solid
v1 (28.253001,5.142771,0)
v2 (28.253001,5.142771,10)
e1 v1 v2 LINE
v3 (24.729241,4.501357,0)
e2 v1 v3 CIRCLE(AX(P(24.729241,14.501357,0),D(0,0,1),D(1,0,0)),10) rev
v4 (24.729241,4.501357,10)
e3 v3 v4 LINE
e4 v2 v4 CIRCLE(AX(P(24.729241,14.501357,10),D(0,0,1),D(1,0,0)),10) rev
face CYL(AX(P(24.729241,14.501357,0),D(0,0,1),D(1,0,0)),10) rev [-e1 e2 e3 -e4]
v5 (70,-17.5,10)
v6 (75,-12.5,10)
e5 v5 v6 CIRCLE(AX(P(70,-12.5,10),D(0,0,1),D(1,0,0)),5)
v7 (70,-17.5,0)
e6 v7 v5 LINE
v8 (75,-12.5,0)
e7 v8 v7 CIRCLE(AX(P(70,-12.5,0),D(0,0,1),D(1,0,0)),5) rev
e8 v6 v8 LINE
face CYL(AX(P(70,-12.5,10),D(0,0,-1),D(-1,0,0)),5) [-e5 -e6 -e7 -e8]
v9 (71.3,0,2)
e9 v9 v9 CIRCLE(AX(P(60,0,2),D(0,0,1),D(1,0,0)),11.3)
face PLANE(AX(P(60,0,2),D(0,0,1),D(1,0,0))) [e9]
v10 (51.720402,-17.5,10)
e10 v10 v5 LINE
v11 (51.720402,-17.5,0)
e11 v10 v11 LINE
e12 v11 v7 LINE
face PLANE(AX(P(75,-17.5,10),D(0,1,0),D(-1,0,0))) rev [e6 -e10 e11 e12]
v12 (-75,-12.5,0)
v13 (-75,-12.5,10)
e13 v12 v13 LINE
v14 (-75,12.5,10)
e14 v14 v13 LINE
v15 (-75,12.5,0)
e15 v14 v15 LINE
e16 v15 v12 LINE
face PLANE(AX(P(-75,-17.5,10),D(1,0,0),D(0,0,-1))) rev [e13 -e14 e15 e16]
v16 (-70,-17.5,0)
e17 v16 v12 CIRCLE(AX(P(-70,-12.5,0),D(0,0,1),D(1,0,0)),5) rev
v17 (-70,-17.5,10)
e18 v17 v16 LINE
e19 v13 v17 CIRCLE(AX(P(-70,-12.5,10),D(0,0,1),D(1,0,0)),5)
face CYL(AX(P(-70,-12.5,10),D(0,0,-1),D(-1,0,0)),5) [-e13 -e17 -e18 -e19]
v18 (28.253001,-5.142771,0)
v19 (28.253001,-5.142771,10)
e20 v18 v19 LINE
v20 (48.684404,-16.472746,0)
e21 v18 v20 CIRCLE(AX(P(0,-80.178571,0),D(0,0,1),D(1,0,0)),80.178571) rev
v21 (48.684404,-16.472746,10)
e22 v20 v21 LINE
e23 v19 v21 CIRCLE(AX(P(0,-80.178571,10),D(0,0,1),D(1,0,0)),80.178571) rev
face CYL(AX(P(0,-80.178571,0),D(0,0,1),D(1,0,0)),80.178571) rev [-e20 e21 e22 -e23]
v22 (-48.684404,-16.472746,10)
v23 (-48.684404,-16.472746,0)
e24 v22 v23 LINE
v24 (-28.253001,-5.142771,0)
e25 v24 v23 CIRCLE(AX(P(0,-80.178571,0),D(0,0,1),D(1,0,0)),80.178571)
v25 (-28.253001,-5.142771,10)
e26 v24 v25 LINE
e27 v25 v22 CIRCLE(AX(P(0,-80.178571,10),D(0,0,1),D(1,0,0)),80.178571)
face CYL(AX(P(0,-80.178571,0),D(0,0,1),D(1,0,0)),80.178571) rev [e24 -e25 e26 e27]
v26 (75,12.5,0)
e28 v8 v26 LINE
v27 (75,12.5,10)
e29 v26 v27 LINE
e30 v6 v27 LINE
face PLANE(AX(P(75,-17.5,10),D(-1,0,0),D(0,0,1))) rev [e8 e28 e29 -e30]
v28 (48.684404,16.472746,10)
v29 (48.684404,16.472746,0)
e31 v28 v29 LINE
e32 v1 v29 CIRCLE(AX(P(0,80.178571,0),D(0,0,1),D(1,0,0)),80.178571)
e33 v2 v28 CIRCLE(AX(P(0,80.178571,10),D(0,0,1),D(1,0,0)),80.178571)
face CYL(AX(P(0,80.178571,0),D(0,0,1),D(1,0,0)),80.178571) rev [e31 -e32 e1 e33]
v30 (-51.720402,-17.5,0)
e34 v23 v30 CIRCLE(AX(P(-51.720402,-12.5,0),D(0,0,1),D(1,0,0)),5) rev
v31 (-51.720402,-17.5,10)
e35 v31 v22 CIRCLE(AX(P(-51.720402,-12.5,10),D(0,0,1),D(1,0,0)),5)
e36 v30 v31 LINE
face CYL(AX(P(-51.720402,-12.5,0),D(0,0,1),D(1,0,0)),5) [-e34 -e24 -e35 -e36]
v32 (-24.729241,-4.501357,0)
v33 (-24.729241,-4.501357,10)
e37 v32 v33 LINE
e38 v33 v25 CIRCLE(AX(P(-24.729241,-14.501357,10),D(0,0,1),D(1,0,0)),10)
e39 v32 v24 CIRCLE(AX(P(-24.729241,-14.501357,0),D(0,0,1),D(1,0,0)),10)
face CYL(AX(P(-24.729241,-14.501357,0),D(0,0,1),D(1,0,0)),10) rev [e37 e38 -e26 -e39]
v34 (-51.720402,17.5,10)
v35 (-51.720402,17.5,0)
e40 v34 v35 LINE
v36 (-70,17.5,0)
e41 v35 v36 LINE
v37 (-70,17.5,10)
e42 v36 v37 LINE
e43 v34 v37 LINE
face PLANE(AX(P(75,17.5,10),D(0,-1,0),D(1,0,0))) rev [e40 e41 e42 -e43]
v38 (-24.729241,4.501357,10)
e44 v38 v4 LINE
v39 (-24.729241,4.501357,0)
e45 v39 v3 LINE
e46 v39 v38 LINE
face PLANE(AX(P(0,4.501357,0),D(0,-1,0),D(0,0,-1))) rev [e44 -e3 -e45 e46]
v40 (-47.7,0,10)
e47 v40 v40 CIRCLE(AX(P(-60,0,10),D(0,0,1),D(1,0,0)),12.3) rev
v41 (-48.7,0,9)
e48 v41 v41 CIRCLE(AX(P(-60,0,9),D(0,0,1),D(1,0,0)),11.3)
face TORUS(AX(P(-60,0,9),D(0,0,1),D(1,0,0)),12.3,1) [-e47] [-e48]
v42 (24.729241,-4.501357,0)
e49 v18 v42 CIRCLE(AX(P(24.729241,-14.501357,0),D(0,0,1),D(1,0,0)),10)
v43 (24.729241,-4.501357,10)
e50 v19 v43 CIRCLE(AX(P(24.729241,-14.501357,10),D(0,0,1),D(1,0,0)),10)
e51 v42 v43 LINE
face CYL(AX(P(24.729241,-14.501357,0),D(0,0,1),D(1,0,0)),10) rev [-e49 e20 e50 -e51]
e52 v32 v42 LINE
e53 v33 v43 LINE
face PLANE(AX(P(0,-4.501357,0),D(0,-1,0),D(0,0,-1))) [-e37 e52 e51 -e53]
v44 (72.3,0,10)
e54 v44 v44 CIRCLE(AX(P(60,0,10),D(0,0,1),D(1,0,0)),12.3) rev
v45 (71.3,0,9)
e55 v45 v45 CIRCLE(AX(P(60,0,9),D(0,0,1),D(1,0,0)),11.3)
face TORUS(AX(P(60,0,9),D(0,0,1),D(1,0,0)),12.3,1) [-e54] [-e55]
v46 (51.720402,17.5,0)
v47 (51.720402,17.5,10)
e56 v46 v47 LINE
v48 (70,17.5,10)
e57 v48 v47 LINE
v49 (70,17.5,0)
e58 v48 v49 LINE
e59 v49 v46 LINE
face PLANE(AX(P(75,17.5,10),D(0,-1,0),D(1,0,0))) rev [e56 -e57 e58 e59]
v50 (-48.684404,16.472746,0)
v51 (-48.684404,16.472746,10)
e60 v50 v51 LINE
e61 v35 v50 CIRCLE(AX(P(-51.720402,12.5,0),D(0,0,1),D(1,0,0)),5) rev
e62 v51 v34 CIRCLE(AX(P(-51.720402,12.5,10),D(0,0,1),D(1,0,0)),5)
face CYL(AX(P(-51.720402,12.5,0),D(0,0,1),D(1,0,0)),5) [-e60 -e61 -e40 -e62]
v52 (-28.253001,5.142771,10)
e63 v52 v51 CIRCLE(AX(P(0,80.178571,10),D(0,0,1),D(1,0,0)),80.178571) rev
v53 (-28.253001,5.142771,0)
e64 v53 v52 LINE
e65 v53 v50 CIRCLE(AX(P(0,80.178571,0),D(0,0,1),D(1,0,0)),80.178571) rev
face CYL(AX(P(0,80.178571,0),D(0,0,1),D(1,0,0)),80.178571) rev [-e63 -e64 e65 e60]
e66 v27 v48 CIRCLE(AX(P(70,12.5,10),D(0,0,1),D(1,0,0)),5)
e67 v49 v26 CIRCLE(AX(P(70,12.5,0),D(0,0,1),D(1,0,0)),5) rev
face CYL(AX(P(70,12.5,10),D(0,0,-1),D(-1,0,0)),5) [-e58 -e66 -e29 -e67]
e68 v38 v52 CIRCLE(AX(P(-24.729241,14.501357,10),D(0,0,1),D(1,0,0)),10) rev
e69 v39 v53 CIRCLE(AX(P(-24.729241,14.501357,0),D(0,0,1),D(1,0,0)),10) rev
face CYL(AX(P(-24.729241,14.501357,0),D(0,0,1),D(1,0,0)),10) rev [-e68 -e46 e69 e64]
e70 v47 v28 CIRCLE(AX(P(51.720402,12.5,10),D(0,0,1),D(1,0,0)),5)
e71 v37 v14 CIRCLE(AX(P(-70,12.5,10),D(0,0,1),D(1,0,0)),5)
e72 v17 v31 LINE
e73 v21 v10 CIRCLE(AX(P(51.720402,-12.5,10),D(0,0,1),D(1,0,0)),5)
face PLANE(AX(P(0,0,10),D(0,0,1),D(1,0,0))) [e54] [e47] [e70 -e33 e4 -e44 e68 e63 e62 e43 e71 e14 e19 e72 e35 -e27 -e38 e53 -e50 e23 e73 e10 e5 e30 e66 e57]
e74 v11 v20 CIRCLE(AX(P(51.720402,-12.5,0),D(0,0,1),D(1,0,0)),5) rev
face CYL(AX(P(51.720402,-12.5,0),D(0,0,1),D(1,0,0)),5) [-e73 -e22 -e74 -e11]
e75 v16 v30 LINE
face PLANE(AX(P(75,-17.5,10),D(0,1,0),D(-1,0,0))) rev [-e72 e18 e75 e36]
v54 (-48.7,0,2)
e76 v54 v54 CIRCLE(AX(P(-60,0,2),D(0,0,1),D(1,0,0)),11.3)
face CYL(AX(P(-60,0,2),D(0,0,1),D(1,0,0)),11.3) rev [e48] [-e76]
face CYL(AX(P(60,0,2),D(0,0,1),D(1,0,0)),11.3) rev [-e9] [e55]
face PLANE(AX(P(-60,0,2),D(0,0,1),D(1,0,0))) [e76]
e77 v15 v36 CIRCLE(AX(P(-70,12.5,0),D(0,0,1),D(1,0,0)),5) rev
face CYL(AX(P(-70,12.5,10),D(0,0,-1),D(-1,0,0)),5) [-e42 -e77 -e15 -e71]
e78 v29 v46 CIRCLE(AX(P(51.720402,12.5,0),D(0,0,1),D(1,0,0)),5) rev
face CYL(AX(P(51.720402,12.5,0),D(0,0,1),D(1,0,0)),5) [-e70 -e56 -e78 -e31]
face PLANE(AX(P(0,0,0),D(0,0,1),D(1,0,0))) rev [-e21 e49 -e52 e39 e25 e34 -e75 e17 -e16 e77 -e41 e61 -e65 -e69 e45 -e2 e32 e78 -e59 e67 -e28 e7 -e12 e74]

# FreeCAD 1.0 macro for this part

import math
import FreeCAD as App
import Part
import Sketcher

V = App.Vector


def edges_at(feature, points):
    """Names of the edges that pass closest to the given points."""
    edges = feature.Shape.Edges
    near = lambda p: min(range(len(edges)), key=lambda i: edges[i].distToShape(Part.Vertex(*p))[0])
    return sorted({f"Edge{near(p) + 1}" for p in points})

doc = App.newDocument("Part")
params = doc.addObject("Spreadsheet::Sheet", "Params")
for row, (alias, value) in enumerate([
    ("sketch1_width", "150 mm"),
    ("sketch1_height", "35 mm"),
    ("pad1_length", "10 mm"),
    ("sketch2_diameter", "22.6 mm"),
    ("pocket1_length", "8 mm"),
    ("sketch3_radius", "10 mm"),
    ("sketch3_width", "100 mm"),
    ("fillet_radius", "5 mm"),
    ("fillet2_radius", "1 mm"),
], start=1):
    params.set(f"A{row}", alias)
    params.set(f"B{row}", "=" + value)
    params.setAlias(f"B{row}", alias)

body = doc.addObject("PartDesign::Body", "Body")

sketch1 = body.newObject("Sketcher::SketchObject", "Sketch")
sketch1.AttachmentSupport = (doc.getObject("XY_Plane"), [""])
sketch1.MapMode = "FlatFace"
sketch1.addGeometry(Part.LineSegment(V(-75, 17.5, 0), V(-75, -17.5, 0)), False)
sketch1.addGeometry(Part.LineSegment(V(-75, -17.5, 0), V(75, -17.5, 0)), False)
sketch1.addGeometry(Part.LineSegment(V(75, -17.5, 0), V(75, 17.5, 0)), False)
sketch1.addGeometry(Part.LineSegment(V(75, 17.5, 0), V(-75, 17.5, 0)), False)
sketch1.addConstraint(Sketcher.Constraint("Coincident", 0, 2, 1, 1))
sketch1.addConstraint(Sketcher.Constraint("Coincident", 1, 2, 2, 1))
sketch1.addConstraint(Sketcher.Constraint("Coincident", 2, 2, 3, 1))
sketch1.addConstraint(Sketcher.Constraint("Coincident", 3, 2, 0, 1))
sketch1.addConstraint(Sketcher.Constraint("Vertical", 0))
sketch1.addConstraint(Sketcher.Constraint("Horizontal", 1))
sketch1.addConstraint(Sketcher.Constraint("Vertical", 2))
sketch1.addConstraint(Sketcher.Constraint("Horizontal", 3))
sketch1.addConstraint(Sketcher.Constraint("Symmetric", 0, 2, 2, 2, -1, 1))
sketch1.addConstraint(Sketcher.Constraint("DistanceX", 1, 1, 1, 2, 150.0))
sketch1.addConstraint(Sketcher.Constraint("DistanceY", 0, 2, 0, 1, 35.0))
sketch1.setExpression("Constraints[9]", "Params.sketch1_width")
sketch1.setExpression("Constraints[10]", "Params.sketch1_height")
pad1 = body.newObject("PartDesign::Pad", "Pad")
pad1.Profile = sketch1
pad1.setExpression("Length", "Params.pad1_length")

sketch2 = body.newObject("Sketcher::SketchObject", "Sketch001")
sketch2.AttachmentSupport = (doc.getObject("XY_Plane"), [""])
sketch2.MapMode = "FlatFace"
sketch2.AttachmentOffset = App.Placement(V(0, 0, 10), App.Rotation())
sketch2.addGeometry(Part.Circle(V(-60, 0, 0), V(0, 0, 1), 11.3), False)
sketch2.addGeometry(Part.Circle(V(60, 0, 0), V(0, 0, 1), 11.3), False)
sketch2.addConstraint(Sketcher.Constraint("Equal", 0, 1))
sketch2.addConstraint(Sketcher.Constraint("Symmetric", 0, 3, 1, 3, -1, 1))
sketch2.addConstraint(Sketcher.Constraint("PointOnObject", 0, 3, -1))
sketch2.addConstraint(Sketcher.Constraint("Diameter", 0, 22.6))
sketch2.addConstraint(Sketcher.Constraint("DistanceX", 0, 3, -1, 1, 60.0))
sketch2.setExpression("Constraints[3]", "Params.sketch2_diameter")
pocket1 = body.newObject("PartDesign::Pocket", "Pocket")
pocket1.Profile = sketch2
pocket1.setExpression("Length", "Params.pocket1_length")

sketch3 = body.newObject("Sketcher::SketchObject", "Sketch002")
sketch3.AttachmentSupport = (doc.getObject("XY_Plane"), [""])
sketch3.MapMode = "FlatFace"
sketch3.AttachmentOffset = App.Placement(V(0, 0, 10), App.Rotation())
sketch3.addGeometry(Part.LineSegment(V(24.729241, -4.501357, 0), V(-24.729241, -4.501357, 0)), False)
sketch3.addGeometry(Part.ArcOfCircle(Part.Circle(V(-24.729241, -14.501357, 0), V(0, 0, 1), 10), math.radians(90), math.radians(110.632708)), False)
sketch3.addGeometry(Part.ArcOfCircle(Part.Circle(V(0, -80.178571, 0), V(0, 0, 1), 80.178571), math.radians(110.632708), math.radians(128.580092)), False)
sketch3.addGeometry(Part.LineSegment(V(-50, -17.5, 0), V(50, -17.5, 0)), False)
sketch3.addGeometry(Part.ArcOfCircle(Part.Circle(V(0, -80.178571, 0), V(0, 0, 1), 80.178571), math.radians(51.419908), math.radians(69.367292)), False)
sketch3.addGeometry(Part.ArcOfCircle(Part.Circle(V(24.729241, -14.501357, 0), V(0, 0, 1), 10), math.radians(69.367292), math.radians(90)), False)
sketch3.addGeometry(Part.ArcOfCircle(Part.Circle(V(-24.729241, 14.501357, 0), V(0, 0, 1), 10), math.radians(-110.632708), math.radians(-90)), False)
sketch3.addGeometry(Part.LineSegment(V(-24.729241, 4.501357, 0), V(24.729241, 4.501357, 0)), False)
sketch3.addGeometry(Part.ArcOfCircle(Part.Circle(V(24.729241, 14.501357, 0), V(0, 0, 1), 10), math.radians(-90), math.radians(-69.367292)), False)
sketch3.addGeometry(Part.ArcOfCircle(Part.Circle(V(0, 80.178571, 0), V(0, 0, 1), 80.178571), math.radians(-69.367292), math.radians(-51.419908)), False)
sketch3.addGeometry(Part.LineSegment(V(50, 17.5, 0), V(-50, 17.5, 0)), False)
sketch3.addGeometry(Part.ArcOfCircle(Part.Circle(V(0, 80.178571, 0), V(0, 0, 1), 80.178571), math.radians(-128.580092), math.radians(-110.632708)), False)
sketch3.addConstraint(Sketcher.Constraint("Tangent", 0, 2, 1, 1))
sketch3.addConstraint(Sketcher.Constraint("Tangent", 1, 2, 2, 1))
sketch3.addConstraint(Sketcher.Constraint("Coincident", 2, 2, 3, 1))
sketch3.addConstraint(Sketcher.Constraint("Coincident", 3, 2, 4, 1))
sketch3.addConstraint(Sketcher.Constraint("Tangent", 4, 2, 5, 1))
sketch3.addConstraint(Sketcher.Constraint("Tangent", 5, 2, 0, 1))
sketch3.addConstraint(Sketcher.Constraint("Tangent", 6, 2, 7, 1))
sketch3.addConstraint(Sketcher.Constraint("Tangent", 7, 2, 8, 1))
sketch3.addConstraint(Sketcher.Constraint("Tangent", 8, 2, 9, 1))
sketch3.addConstraint(Sketcher.Constraint("Coincident", 9, 2, 10, 1))
sketch3.addConstraint(Sketcher.Constraint("Coincident", 10, 2, 11, 1))
sketch3.addConstraint(Sketcher.Constraint("Tangent", 11, 2, 6, 1))
sketch3.addConstraint(Sketcher.Constraint("Horizontal", 0))
sketch3.addConstraint(Sketcher.Constraint("Horizontal", 3))
sketch3.addConstraint(Sketcher.Constraint("Horizontal", 7))
sketch3.addConstraint(Sketcher.Constraint("Horizontal", 10))
sketch3.addConstraint(Sketcher.Constraint("Coincident", 4, 3, 2, 3))
sketch3.addConstraint(Sketcher.Constraint("Coincident", 11, 3, 9, 3))
sketch3.addConstraint(Sketcher.Constraint("Equal", 2, 4))
sketch3.addConstraint(Sketcher.Constraint("Equal", 1, 5))
sketch3.addConstraint(Sketcher.Constraint("Equal", 5, 6))
sketch3.addConstraint(Sketcher.Constraint("Equal", 6, 8))
sketch3.addConstraint(Sketcher.Constraint("Equal", 4, 9))
sketch3.addConstraint(Sketcher.Constraint("Equal", 9, 11))
sketch3.addConstraint(Sketcher.Constraint("Symmetric", 5, 3, 6, 3, -1, 1))
sketch3.addConstraint(Sketcher.Constraint("Symmetric", 2, 2, 9, 2, -1, 1))
sketch3.addConstraint(Sketcher.Constraint("PointOnObject", 2, 3, -2))
sketch3.addConstraint(Sketcher.Constraint("Radius", 1, 10.0))
sketch3.addConstraint(Sketcher.Constraint("DistanceX", 3, 1, 3, 2, 100.0))
sketch3.addConstraint(Sketcher.Constraint("DistanceY", 2, 2, 10, 2, 35.0))
sketch3.addConstraint(Sketcher.Constraint("Radius", 2, 80.178571))
sketch3.addConstraint(Sketcher.Constraint("DistanceX", 1, 2, -1, 1, 28.253001))
sketch3.setExpression("Constraints[27]", "Params.sketch3_radius")
sketch3.setExpression("Constraints[28]", "Params.sketch3_width")
pocket2 = body.newObject("PartDesign::Pocket", "Pocket001")
pocket2.Profile = sketch3
pocket2.Type = "ThroughAll"
doc.recompute()

fillet = body.newObject("PartDesign::Fillet", "Fillet")
fillet.Base = (pocket2, edges_at(pocket2, [
    (50, -17.5, 5),
    (-50, -17.5, 5),
    (-50, 17.5, 5),
    (50, 17.5, 5),
    (-75, 17.5, 5),
    (75, 17.5, 5),
    (75, -17.5, 5),
    (-75, -17.5, 5),
]))
fillet.setExpression("Radius", "Params.fillet_radius")
doc.recompute()

fillet2 = body.newObject("PartDesign::Fillet", "Fillet001")
fillet2.Base = (fillet, edges_at(fillet, [(-71.3, 0, 10), (48.7, 0, 10)]))
fillet2.setExpression("Radius", "Params.fillet2_radius")

doc.recompute()
